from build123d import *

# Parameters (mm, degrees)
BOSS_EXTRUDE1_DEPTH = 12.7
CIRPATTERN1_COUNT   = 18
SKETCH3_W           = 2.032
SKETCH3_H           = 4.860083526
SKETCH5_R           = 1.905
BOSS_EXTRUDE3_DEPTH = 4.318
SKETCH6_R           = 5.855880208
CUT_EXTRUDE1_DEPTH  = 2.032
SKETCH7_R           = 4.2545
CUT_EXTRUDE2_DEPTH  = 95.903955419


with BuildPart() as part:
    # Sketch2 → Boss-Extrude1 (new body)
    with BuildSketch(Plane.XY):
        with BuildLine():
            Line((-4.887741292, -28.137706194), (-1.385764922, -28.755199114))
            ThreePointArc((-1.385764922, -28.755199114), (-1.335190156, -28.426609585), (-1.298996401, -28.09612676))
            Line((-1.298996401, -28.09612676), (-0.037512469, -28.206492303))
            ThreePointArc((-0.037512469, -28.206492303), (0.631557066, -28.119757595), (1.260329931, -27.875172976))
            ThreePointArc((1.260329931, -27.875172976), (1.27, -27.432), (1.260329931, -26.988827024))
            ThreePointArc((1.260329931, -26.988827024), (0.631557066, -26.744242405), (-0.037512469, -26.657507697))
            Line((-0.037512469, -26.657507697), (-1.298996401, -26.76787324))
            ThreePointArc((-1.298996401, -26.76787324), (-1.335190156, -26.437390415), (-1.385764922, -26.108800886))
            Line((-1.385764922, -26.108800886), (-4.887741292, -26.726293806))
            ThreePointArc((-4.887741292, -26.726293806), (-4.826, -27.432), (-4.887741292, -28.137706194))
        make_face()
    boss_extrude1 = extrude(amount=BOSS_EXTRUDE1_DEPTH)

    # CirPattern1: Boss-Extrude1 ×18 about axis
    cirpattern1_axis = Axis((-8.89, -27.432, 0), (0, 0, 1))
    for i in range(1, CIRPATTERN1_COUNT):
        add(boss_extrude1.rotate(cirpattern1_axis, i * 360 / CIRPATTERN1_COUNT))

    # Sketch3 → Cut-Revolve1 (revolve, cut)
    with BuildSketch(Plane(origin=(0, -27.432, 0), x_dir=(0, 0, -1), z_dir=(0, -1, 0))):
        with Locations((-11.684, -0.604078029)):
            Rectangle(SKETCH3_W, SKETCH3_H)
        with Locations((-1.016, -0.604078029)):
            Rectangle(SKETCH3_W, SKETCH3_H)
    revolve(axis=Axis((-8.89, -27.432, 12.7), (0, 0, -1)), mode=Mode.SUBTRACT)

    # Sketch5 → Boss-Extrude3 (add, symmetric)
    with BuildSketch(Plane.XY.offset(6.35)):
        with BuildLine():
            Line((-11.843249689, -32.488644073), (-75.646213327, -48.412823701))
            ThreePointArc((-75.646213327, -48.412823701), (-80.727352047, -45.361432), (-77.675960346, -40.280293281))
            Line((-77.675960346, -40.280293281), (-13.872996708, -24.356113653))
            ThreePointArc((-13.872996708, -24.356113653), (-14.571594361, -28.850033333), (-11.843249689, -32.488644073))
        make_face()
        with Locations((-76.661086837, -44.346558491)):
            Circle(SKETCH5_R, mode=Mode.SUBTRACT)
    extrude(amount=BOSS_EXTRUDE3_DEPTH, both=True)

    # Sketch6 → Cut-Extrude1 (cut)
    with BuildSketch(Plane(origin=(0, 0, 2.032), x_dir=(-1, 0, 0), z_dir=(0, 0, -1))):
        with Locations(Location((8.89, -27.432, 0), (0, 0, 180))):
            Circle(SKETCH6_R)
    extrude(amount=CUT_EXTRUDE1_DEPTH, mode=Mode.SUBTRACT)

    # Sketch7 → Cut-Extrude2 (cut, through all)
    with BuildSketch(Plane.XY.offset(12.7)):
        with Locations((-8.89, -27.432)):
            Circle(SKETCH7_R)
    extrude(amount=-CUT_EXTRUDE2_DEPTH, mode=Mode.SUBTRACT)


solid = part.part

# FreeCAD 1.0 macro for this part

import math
import FreeCAD as App
import Part
import Sketcher
Q = App.Units.Quantity

doc = App.newDocument("Part")
body = doc.addObject("PartDesign::Body", "Body")

sketch1 = body.newObject("Sketcher::SketchObject", "Sketch")
sketch1.AttachmentSupport = (doc.getObject("XY_Plane"), [""])
sketch1.MapMode = "FlatFace"
sketch1.addGeometry([
    Part.LineSegment(App.Vector(-4.9, -28.1, 0), App.Vector(-1.4, -28.8, 0)),
    Part.ArcOfCircle(Part.Circle(App.Vector(-8.9, -27.4, 0), App.Vector(0, 0, 1), 7.6), math.radians(-10), math.radians(-5)),
    Part.LineSegment(App.Vector(-1.3, -28.1, 0), App.Vector(0, -28.2, 0)),
    Part.ArcOfCircle(Part.Circle(App.Vector(-0.1, -25.4, 0), App.Vector(0, 0, 1), 2.8), math.radians(-90), math.radians(-62)),
    Part.ArcOfCircle(Part.Circle(App.Vector(-8.9, -27.4, 0), App.Vector(0, 0, 1), 10.2), math.radians(-2.5), math.radians(2.5)),
    Part.ArcOfCircle(Part.Circle(App.Vector(-0.1, -29.5, 0), App.Vector(0, 0, 1), 2.8), math.radians(62), math.radians(90)),
    Part.LineSegment(App.Vector(0, -26.7, 0), App.Vector(-1.3, -26.8, 0)),
    Part.ArcOfCircle(Part.Circle(App.Vector(-8.9, -27.4, 0), App.Vector(0, 0, 1), 7.6), math.radians(5), math.radians(10)),
    Part.LineSegment(App.Vector(-1.4, -26.1, 0), App.Vector(-4.9, -26.7, 0)),
    Part.ArcOfCircle(Part.Circle(App.Vector(-8.9, -27.4, 0), App.Vector(0, 0, 1), 4.1), math.radians(-10), math.radians(10)),
], False)
sketch1.addConstraint([
    Sketcher.Constraint("Coincident", 0, 2, 1, 1),
    Sketcher.Constraint("Coincident", 1, 2, 2, 1),
    Sketcher.Constraint("Coincident", 2, 2, 3, 1),
    Sketcher.Constraint("Coincident", 3, 2, 4, 1),
    Sketcher.Constraint("Coincident", 4, 2, 5, 1),
    Sketcher.Constraint("Coincident", 5, 2, 6, 1),
    Sketcher.Constraint("Coincident", 6, 2, 7, 1),
    Sketcher.Constraint("Coincident", 7, 2, 8, 1),
    Sketcher.Constraint("Coincident", 8, 2, 9, 2),
    Sketcher.Constraint("Coincident", 9, 1, 0, 1),
    Sketcher.Constraint("Coincident", 4, 3, 1, 3),
    Sketcher.Constraint("Coincident", 7, 3, 1, 3),
    Sketcher.Constraint("Coincident", 9, 3, 1, 3),
    Sketcher.Constraint("Equal", 3, 5),
    Sketcher.Constraint("Equal", 1, 7),
    Sketcher.Constraint("Vertical", 3, 3, 5, 3),
    Sketcher.Constraint("Vertical", 3, 2, 4, 2),
    Sketcher.Constraint("Vertical", 2, 2, 5, 2),
    Sketcher.Constraint("Vertical", 1, 2, 6, 2),
    Sketcher.Constraint("Vertical", 0, 2, 7, 2),
    Sketcher.Constraint("Vertical", 8, 2, 9, 1),
    Sketcher.Constraint("Radius", 1, Q("0.3 in")),
    Sketcher.Constraint("Radius", 4, Q("0.4 in")),
    Sketcher.Constraint("Radius", 3, Q("0.11 in")),
    Sketcher.Constraint("Radius", 9, Q("0.16 in")),
    Sketcher.Constraint("Angle", 0, Q("-10 deg")),
    Sketcher.Constraint("Angle", 2, Q("-5 deg")),
    Sketcher.Constraint("DistanceX", 1, 3, -1, 1, Q("0.35 in")),
    Sketcher.Constraint("DistanceY", 1, 3, -1, 1, Q("1.08 in")),
    Sketcher.Constraint("DistanceY", 0, 2, -1, 1, 28.755199),
    Sketcher.Constraint("DistanceY", 1, 2, 4, 2, 1.1073),
    Sketcher.Constraint("DistanceY", 3, 3, -1, 1, 25.412579),
    Sketcher.Constraint("DistanceX", 0, 2, 5, 3, 1.326221),
])
pad1 = body.newObject("PartDesign::Pad", "Pad")
pad1.Profile = sketch1
pad1.Length = Q("0.5 in")
doc.recompute()

datumline = body.newObject("PartDesign::Line", "DatumLine")
datumline.Placement = App.Placement(App.Vector(-8.89, -27.432, 0), App.Rotation(App.Vector(0, 0, 1), App.Vector(0, 0, 1)))
polarpattern = body.newObject("PartDesign::PolarPattern", "PolarPattern")
polarpattern.Originals = [pad1]
polarpattern.Axis = (datumline, [""])
polarpattern.Angle = 360
polarpattern.Occurrences = 18
body.Tip = polarpattern

sketch2 = body.newObject("Sketcher::SketchObject", "Sketch001")
sketch2.AttachmentSupport = (doc.getObject("XZ_Plane"), [""])
sketch2.MapMode = "FlatFace"
sketch2.AttachmentOffset = App.Placement(App.Vector(0, 0, 1.08 * 25.4), App.Rotation())
sketch2.addGeometry([
    Part.LineSegment(App.Vector(1.8, 12.7, 0), App.Vector(-3, 12.7, 0)),
    Part.LineSegment(App.Vector(-3, 12.7, 0), App.Vector(-3, 10.7, 0)),
    Part.LineSegment(App.Vector(-3, 10.7, 0), App.Vector(1.8, 10.7, 0)),
    Part.LineSegment(App.Vector(1.8, 10.7, 0), App.Vector(1.8, 12.7, 0)),
    Part.LineSegment(App.Vector(1.8, 2, 0), App.Vector(-3, 2, 0)),
    Part.LineSegment(App.Vector(-3, 2, 0), App.Vector(-3, 0, 0)),
    Part.LineSegment(App.Vector(-3, 0, 0), App.Vector(1.8, 0, 0)),
    Part.LineSegment(App.Vector(1.8, 0, 0), App.Vector(1.8, 2, 0)),
], False)
sketch2.addGeometry(Part.LineSegment(App.Vector(-8.9, 12.7, 0), App.Vector(-8.9, 0, 0)), True)
sketch2.addConstraint([
    Sketcher.Constraint("Coincident", 0, 2, 1, 1),
    Sketcher.Constraint("Coincident", 1, 2, 2, 1),
    Sketcher.Constraint("Coincident", 2, 2, 3, 1),
    Sketcher.Constraint("Coincident", 3, 2, 0, 1),
    Sketcher.Constraint("Coincident", 4, 2, 5, 1),
    Sketcher.Constraint("Coincident", 5, 2, 6, 1),
    Sketcher.Constraint("Coincident", 6, 2, 7, 1),
    Sketcher.Constraint("Coincident", 7, 2, 4, 1),
    Sketcher.Constraint("Horizontal", 0),
    Sketcher.Constraint("Vertical", 1),
    Sketcher.Constraint("Horizontal", 2),
    Sketcher.Constraint("Vertical", 3),
    Sketcher.Constraint("Horizontal", 4),
    Sketcher.Constraint("Vertical", 5),
    Sketcher.Constraint("Horizontal", 6),
    Sketcher.Constraint("Vertical", 7),
    Sketcher.Constraint("Vertical", 8),
    Sketcher.Constraint("PointOnObject", 5, 2, -1),
    Sketcher.Constraint("PointOnObject", 8, 2, -1),
    Sketcher.Constraint("Horizontal", 3, 2, 8, 1),
    Sketcher.Constraint("Vertical", 1, 2, 4, 2),
    Sketcher.Constraint("Vertical", 3, 2, 6, 2),
    Sketcher.Constraint("Equal", 3, 5),
    Sketcher.Constraint("DistanceY", 8, 2, 8, 1, Q("0.5 in")),
    Sketcher.Constraint("DistanceY", 1, 2, 1, 1, Q("0.08 in")),
    Sketcher.Constraint("DistanceX", 8, 1, -1, 1, Q("0.35 in")),
    Sketcher.Constraint("DistanceX", 0, 2, 0, 1, 4.860084),
    Sketcher.Constraint("DistanceX", 0, 2, -1, 1, 3.03412),
])
groove = body.newObject("PartDesign::Groove", "Groove")
groove.Profile = sketch2
groove.ReferenceAxis = (sketch2, ["Axis0"])
groove.Angle = 360

sketch3 = body.newObject("Sketcher::SketchObject", "Sketch002")
sketch3.AttachmentSupport = (doc.getObject("XY_Plane"), [""])
sketch3.MapMode = "FlatFace"
sketch3.AttachmentOffset = App.Placement(App.Vector(0, 0, 0.25 * 25.4), App.Rotation())
sketch3.addGeometry([
    Part.LineSegment(App.Vector(-75.646213, -48.412824, 0), App.Vector(-11.84325, -32.488644, 0)),
    Part.ArcOfCircle(Part.Circle(App.Vector(-8.89, -27.432, 0), App.Vector(0, 0, 1), 5.85588), math.radians(148.313945), math.radians(239.713639)),
    Part.LineSegment(App.Vector(-13.872997, -24.356114, 0), App.Vector(-77.67596, -40.280293, 0)),
    Part.ArcOfCircle(Part.Circle(App.Vector(-76.661087, -44.346558, 0), App.Vector(0, 0, 1), 4.191), math.radians(104.013792), math.radians(284.013792)),
    Part.Circle(App.Vector(-76.661087, -44.346558, 0), App.Vector(0, 0, 1), 1.905),
], False)
sketch3.addConstraint([
    Sketcher.Constraint("Coincident", 0, 2, 1, 2),
    Sketcher.Constraint("Coincident", 1, 1, 2, 1),
    Sketcher.Constraint("Tangent", 2, 2, 3, 1),
    Sketcher.Constraint("Tangent", 3, 2, 0, 1),
    Sketcher.Constraint("Coincident", 4, 3, 3, 3),
    Sketcher.Constraint("Parallel", 0, 2),
    Sketcher.Constraint("Equal", 0, 2),
    Sketcher.Constraint("Diameter", 4, Q("0.15 in")),
    Sketcher.Constraint("Radius", 3, Q("0.165 in")),
    Sketcher.Constraint("DistanceX", 1, 3, -1, 1, Q("0.35 in")),
    Sketcher.Constraint("DistanceY", 1, 3, -1, 1, Q("1.08 in")),
    Sketcher.Constraint("Radius", 1, 5.85588),
    Sketcher.Constraint("DistanceY", 3, 3, -1, 1, 44.346558),
    Sketcher.Constraint("DistanceX", 0, 2, -1, 1, 11.84325),
])
pad2 = body.newObject("PartDesign::Pad", "Pad001")
pad2.Profile = sketch3
pad2.Length = Q("0.34 in")
pad2.Midplane = True

sketch4 = body.newObject("Sketcher::SketchObject", "Sketch003")
sketch4.AttachmentSupport = (doc.getObject("XY_Plane"), [""])
sketch4.MapMode = "FlatFace"
sketch4.AttachmentOffset = App.Placement(App.Vector(0, 0, 0.08 * 25.4), App.Rotation())
sketch4.addGeometry(Part.Circle(App.Vector(-9, -27, 0), App.Vector(0, 0, 1), 6), False)
sketch4.addConstraint([
    Sketcher.Constraint("DistanceX", 0, 3, -1, 1, Q("0.35 in")),
    Sketcher.Constraint("DistanceY", 0, 3, -1, 1, Q("1.08 in")),
    Sketcher.Constraint("Diameter", 0, 11.71176),
])
pocket1 = body.newObject("PartDesign::Pocket", "Pocket")
pocket1.Profile = sketch4
pocket1.Length = Q("0.08 in")

sketch5 = body.newObject("Sketcher::SketchObject", "Sketch004")
sketch5.AttachmentSupport = (doc.getObject("XY_Plane"), [""])
sketch5.MapMode = "FlatFace"
sketch5.AttachmentOffset = App.Placement(App.Vector(0, 0, 0.5 * 25.4), App.Rotation())
sketch5.addGeometry(Part.Circle(App.Vector(-8.9, -27.4, 0), App.Vector(0, 0, 1), 4.3), False)
sketch5.addConstraint([
    Sketcher.Constraint("Diameter", 0, Q("0.335 in")),
    Sketcher.Constraint("DistanceX", 0, 3, -1, 1, Q("0.35 in")),
    Sketcher.Constraint("DistanceY", 0, 3, -1, 1, Q("1.08 in")),
])
pocket2 = body.newObject("PartDesign::Pocket", "Pocket001")
pocket2.Profile = sketch5
pocket2.Type = "ThroughAll"

doc.recompute()
